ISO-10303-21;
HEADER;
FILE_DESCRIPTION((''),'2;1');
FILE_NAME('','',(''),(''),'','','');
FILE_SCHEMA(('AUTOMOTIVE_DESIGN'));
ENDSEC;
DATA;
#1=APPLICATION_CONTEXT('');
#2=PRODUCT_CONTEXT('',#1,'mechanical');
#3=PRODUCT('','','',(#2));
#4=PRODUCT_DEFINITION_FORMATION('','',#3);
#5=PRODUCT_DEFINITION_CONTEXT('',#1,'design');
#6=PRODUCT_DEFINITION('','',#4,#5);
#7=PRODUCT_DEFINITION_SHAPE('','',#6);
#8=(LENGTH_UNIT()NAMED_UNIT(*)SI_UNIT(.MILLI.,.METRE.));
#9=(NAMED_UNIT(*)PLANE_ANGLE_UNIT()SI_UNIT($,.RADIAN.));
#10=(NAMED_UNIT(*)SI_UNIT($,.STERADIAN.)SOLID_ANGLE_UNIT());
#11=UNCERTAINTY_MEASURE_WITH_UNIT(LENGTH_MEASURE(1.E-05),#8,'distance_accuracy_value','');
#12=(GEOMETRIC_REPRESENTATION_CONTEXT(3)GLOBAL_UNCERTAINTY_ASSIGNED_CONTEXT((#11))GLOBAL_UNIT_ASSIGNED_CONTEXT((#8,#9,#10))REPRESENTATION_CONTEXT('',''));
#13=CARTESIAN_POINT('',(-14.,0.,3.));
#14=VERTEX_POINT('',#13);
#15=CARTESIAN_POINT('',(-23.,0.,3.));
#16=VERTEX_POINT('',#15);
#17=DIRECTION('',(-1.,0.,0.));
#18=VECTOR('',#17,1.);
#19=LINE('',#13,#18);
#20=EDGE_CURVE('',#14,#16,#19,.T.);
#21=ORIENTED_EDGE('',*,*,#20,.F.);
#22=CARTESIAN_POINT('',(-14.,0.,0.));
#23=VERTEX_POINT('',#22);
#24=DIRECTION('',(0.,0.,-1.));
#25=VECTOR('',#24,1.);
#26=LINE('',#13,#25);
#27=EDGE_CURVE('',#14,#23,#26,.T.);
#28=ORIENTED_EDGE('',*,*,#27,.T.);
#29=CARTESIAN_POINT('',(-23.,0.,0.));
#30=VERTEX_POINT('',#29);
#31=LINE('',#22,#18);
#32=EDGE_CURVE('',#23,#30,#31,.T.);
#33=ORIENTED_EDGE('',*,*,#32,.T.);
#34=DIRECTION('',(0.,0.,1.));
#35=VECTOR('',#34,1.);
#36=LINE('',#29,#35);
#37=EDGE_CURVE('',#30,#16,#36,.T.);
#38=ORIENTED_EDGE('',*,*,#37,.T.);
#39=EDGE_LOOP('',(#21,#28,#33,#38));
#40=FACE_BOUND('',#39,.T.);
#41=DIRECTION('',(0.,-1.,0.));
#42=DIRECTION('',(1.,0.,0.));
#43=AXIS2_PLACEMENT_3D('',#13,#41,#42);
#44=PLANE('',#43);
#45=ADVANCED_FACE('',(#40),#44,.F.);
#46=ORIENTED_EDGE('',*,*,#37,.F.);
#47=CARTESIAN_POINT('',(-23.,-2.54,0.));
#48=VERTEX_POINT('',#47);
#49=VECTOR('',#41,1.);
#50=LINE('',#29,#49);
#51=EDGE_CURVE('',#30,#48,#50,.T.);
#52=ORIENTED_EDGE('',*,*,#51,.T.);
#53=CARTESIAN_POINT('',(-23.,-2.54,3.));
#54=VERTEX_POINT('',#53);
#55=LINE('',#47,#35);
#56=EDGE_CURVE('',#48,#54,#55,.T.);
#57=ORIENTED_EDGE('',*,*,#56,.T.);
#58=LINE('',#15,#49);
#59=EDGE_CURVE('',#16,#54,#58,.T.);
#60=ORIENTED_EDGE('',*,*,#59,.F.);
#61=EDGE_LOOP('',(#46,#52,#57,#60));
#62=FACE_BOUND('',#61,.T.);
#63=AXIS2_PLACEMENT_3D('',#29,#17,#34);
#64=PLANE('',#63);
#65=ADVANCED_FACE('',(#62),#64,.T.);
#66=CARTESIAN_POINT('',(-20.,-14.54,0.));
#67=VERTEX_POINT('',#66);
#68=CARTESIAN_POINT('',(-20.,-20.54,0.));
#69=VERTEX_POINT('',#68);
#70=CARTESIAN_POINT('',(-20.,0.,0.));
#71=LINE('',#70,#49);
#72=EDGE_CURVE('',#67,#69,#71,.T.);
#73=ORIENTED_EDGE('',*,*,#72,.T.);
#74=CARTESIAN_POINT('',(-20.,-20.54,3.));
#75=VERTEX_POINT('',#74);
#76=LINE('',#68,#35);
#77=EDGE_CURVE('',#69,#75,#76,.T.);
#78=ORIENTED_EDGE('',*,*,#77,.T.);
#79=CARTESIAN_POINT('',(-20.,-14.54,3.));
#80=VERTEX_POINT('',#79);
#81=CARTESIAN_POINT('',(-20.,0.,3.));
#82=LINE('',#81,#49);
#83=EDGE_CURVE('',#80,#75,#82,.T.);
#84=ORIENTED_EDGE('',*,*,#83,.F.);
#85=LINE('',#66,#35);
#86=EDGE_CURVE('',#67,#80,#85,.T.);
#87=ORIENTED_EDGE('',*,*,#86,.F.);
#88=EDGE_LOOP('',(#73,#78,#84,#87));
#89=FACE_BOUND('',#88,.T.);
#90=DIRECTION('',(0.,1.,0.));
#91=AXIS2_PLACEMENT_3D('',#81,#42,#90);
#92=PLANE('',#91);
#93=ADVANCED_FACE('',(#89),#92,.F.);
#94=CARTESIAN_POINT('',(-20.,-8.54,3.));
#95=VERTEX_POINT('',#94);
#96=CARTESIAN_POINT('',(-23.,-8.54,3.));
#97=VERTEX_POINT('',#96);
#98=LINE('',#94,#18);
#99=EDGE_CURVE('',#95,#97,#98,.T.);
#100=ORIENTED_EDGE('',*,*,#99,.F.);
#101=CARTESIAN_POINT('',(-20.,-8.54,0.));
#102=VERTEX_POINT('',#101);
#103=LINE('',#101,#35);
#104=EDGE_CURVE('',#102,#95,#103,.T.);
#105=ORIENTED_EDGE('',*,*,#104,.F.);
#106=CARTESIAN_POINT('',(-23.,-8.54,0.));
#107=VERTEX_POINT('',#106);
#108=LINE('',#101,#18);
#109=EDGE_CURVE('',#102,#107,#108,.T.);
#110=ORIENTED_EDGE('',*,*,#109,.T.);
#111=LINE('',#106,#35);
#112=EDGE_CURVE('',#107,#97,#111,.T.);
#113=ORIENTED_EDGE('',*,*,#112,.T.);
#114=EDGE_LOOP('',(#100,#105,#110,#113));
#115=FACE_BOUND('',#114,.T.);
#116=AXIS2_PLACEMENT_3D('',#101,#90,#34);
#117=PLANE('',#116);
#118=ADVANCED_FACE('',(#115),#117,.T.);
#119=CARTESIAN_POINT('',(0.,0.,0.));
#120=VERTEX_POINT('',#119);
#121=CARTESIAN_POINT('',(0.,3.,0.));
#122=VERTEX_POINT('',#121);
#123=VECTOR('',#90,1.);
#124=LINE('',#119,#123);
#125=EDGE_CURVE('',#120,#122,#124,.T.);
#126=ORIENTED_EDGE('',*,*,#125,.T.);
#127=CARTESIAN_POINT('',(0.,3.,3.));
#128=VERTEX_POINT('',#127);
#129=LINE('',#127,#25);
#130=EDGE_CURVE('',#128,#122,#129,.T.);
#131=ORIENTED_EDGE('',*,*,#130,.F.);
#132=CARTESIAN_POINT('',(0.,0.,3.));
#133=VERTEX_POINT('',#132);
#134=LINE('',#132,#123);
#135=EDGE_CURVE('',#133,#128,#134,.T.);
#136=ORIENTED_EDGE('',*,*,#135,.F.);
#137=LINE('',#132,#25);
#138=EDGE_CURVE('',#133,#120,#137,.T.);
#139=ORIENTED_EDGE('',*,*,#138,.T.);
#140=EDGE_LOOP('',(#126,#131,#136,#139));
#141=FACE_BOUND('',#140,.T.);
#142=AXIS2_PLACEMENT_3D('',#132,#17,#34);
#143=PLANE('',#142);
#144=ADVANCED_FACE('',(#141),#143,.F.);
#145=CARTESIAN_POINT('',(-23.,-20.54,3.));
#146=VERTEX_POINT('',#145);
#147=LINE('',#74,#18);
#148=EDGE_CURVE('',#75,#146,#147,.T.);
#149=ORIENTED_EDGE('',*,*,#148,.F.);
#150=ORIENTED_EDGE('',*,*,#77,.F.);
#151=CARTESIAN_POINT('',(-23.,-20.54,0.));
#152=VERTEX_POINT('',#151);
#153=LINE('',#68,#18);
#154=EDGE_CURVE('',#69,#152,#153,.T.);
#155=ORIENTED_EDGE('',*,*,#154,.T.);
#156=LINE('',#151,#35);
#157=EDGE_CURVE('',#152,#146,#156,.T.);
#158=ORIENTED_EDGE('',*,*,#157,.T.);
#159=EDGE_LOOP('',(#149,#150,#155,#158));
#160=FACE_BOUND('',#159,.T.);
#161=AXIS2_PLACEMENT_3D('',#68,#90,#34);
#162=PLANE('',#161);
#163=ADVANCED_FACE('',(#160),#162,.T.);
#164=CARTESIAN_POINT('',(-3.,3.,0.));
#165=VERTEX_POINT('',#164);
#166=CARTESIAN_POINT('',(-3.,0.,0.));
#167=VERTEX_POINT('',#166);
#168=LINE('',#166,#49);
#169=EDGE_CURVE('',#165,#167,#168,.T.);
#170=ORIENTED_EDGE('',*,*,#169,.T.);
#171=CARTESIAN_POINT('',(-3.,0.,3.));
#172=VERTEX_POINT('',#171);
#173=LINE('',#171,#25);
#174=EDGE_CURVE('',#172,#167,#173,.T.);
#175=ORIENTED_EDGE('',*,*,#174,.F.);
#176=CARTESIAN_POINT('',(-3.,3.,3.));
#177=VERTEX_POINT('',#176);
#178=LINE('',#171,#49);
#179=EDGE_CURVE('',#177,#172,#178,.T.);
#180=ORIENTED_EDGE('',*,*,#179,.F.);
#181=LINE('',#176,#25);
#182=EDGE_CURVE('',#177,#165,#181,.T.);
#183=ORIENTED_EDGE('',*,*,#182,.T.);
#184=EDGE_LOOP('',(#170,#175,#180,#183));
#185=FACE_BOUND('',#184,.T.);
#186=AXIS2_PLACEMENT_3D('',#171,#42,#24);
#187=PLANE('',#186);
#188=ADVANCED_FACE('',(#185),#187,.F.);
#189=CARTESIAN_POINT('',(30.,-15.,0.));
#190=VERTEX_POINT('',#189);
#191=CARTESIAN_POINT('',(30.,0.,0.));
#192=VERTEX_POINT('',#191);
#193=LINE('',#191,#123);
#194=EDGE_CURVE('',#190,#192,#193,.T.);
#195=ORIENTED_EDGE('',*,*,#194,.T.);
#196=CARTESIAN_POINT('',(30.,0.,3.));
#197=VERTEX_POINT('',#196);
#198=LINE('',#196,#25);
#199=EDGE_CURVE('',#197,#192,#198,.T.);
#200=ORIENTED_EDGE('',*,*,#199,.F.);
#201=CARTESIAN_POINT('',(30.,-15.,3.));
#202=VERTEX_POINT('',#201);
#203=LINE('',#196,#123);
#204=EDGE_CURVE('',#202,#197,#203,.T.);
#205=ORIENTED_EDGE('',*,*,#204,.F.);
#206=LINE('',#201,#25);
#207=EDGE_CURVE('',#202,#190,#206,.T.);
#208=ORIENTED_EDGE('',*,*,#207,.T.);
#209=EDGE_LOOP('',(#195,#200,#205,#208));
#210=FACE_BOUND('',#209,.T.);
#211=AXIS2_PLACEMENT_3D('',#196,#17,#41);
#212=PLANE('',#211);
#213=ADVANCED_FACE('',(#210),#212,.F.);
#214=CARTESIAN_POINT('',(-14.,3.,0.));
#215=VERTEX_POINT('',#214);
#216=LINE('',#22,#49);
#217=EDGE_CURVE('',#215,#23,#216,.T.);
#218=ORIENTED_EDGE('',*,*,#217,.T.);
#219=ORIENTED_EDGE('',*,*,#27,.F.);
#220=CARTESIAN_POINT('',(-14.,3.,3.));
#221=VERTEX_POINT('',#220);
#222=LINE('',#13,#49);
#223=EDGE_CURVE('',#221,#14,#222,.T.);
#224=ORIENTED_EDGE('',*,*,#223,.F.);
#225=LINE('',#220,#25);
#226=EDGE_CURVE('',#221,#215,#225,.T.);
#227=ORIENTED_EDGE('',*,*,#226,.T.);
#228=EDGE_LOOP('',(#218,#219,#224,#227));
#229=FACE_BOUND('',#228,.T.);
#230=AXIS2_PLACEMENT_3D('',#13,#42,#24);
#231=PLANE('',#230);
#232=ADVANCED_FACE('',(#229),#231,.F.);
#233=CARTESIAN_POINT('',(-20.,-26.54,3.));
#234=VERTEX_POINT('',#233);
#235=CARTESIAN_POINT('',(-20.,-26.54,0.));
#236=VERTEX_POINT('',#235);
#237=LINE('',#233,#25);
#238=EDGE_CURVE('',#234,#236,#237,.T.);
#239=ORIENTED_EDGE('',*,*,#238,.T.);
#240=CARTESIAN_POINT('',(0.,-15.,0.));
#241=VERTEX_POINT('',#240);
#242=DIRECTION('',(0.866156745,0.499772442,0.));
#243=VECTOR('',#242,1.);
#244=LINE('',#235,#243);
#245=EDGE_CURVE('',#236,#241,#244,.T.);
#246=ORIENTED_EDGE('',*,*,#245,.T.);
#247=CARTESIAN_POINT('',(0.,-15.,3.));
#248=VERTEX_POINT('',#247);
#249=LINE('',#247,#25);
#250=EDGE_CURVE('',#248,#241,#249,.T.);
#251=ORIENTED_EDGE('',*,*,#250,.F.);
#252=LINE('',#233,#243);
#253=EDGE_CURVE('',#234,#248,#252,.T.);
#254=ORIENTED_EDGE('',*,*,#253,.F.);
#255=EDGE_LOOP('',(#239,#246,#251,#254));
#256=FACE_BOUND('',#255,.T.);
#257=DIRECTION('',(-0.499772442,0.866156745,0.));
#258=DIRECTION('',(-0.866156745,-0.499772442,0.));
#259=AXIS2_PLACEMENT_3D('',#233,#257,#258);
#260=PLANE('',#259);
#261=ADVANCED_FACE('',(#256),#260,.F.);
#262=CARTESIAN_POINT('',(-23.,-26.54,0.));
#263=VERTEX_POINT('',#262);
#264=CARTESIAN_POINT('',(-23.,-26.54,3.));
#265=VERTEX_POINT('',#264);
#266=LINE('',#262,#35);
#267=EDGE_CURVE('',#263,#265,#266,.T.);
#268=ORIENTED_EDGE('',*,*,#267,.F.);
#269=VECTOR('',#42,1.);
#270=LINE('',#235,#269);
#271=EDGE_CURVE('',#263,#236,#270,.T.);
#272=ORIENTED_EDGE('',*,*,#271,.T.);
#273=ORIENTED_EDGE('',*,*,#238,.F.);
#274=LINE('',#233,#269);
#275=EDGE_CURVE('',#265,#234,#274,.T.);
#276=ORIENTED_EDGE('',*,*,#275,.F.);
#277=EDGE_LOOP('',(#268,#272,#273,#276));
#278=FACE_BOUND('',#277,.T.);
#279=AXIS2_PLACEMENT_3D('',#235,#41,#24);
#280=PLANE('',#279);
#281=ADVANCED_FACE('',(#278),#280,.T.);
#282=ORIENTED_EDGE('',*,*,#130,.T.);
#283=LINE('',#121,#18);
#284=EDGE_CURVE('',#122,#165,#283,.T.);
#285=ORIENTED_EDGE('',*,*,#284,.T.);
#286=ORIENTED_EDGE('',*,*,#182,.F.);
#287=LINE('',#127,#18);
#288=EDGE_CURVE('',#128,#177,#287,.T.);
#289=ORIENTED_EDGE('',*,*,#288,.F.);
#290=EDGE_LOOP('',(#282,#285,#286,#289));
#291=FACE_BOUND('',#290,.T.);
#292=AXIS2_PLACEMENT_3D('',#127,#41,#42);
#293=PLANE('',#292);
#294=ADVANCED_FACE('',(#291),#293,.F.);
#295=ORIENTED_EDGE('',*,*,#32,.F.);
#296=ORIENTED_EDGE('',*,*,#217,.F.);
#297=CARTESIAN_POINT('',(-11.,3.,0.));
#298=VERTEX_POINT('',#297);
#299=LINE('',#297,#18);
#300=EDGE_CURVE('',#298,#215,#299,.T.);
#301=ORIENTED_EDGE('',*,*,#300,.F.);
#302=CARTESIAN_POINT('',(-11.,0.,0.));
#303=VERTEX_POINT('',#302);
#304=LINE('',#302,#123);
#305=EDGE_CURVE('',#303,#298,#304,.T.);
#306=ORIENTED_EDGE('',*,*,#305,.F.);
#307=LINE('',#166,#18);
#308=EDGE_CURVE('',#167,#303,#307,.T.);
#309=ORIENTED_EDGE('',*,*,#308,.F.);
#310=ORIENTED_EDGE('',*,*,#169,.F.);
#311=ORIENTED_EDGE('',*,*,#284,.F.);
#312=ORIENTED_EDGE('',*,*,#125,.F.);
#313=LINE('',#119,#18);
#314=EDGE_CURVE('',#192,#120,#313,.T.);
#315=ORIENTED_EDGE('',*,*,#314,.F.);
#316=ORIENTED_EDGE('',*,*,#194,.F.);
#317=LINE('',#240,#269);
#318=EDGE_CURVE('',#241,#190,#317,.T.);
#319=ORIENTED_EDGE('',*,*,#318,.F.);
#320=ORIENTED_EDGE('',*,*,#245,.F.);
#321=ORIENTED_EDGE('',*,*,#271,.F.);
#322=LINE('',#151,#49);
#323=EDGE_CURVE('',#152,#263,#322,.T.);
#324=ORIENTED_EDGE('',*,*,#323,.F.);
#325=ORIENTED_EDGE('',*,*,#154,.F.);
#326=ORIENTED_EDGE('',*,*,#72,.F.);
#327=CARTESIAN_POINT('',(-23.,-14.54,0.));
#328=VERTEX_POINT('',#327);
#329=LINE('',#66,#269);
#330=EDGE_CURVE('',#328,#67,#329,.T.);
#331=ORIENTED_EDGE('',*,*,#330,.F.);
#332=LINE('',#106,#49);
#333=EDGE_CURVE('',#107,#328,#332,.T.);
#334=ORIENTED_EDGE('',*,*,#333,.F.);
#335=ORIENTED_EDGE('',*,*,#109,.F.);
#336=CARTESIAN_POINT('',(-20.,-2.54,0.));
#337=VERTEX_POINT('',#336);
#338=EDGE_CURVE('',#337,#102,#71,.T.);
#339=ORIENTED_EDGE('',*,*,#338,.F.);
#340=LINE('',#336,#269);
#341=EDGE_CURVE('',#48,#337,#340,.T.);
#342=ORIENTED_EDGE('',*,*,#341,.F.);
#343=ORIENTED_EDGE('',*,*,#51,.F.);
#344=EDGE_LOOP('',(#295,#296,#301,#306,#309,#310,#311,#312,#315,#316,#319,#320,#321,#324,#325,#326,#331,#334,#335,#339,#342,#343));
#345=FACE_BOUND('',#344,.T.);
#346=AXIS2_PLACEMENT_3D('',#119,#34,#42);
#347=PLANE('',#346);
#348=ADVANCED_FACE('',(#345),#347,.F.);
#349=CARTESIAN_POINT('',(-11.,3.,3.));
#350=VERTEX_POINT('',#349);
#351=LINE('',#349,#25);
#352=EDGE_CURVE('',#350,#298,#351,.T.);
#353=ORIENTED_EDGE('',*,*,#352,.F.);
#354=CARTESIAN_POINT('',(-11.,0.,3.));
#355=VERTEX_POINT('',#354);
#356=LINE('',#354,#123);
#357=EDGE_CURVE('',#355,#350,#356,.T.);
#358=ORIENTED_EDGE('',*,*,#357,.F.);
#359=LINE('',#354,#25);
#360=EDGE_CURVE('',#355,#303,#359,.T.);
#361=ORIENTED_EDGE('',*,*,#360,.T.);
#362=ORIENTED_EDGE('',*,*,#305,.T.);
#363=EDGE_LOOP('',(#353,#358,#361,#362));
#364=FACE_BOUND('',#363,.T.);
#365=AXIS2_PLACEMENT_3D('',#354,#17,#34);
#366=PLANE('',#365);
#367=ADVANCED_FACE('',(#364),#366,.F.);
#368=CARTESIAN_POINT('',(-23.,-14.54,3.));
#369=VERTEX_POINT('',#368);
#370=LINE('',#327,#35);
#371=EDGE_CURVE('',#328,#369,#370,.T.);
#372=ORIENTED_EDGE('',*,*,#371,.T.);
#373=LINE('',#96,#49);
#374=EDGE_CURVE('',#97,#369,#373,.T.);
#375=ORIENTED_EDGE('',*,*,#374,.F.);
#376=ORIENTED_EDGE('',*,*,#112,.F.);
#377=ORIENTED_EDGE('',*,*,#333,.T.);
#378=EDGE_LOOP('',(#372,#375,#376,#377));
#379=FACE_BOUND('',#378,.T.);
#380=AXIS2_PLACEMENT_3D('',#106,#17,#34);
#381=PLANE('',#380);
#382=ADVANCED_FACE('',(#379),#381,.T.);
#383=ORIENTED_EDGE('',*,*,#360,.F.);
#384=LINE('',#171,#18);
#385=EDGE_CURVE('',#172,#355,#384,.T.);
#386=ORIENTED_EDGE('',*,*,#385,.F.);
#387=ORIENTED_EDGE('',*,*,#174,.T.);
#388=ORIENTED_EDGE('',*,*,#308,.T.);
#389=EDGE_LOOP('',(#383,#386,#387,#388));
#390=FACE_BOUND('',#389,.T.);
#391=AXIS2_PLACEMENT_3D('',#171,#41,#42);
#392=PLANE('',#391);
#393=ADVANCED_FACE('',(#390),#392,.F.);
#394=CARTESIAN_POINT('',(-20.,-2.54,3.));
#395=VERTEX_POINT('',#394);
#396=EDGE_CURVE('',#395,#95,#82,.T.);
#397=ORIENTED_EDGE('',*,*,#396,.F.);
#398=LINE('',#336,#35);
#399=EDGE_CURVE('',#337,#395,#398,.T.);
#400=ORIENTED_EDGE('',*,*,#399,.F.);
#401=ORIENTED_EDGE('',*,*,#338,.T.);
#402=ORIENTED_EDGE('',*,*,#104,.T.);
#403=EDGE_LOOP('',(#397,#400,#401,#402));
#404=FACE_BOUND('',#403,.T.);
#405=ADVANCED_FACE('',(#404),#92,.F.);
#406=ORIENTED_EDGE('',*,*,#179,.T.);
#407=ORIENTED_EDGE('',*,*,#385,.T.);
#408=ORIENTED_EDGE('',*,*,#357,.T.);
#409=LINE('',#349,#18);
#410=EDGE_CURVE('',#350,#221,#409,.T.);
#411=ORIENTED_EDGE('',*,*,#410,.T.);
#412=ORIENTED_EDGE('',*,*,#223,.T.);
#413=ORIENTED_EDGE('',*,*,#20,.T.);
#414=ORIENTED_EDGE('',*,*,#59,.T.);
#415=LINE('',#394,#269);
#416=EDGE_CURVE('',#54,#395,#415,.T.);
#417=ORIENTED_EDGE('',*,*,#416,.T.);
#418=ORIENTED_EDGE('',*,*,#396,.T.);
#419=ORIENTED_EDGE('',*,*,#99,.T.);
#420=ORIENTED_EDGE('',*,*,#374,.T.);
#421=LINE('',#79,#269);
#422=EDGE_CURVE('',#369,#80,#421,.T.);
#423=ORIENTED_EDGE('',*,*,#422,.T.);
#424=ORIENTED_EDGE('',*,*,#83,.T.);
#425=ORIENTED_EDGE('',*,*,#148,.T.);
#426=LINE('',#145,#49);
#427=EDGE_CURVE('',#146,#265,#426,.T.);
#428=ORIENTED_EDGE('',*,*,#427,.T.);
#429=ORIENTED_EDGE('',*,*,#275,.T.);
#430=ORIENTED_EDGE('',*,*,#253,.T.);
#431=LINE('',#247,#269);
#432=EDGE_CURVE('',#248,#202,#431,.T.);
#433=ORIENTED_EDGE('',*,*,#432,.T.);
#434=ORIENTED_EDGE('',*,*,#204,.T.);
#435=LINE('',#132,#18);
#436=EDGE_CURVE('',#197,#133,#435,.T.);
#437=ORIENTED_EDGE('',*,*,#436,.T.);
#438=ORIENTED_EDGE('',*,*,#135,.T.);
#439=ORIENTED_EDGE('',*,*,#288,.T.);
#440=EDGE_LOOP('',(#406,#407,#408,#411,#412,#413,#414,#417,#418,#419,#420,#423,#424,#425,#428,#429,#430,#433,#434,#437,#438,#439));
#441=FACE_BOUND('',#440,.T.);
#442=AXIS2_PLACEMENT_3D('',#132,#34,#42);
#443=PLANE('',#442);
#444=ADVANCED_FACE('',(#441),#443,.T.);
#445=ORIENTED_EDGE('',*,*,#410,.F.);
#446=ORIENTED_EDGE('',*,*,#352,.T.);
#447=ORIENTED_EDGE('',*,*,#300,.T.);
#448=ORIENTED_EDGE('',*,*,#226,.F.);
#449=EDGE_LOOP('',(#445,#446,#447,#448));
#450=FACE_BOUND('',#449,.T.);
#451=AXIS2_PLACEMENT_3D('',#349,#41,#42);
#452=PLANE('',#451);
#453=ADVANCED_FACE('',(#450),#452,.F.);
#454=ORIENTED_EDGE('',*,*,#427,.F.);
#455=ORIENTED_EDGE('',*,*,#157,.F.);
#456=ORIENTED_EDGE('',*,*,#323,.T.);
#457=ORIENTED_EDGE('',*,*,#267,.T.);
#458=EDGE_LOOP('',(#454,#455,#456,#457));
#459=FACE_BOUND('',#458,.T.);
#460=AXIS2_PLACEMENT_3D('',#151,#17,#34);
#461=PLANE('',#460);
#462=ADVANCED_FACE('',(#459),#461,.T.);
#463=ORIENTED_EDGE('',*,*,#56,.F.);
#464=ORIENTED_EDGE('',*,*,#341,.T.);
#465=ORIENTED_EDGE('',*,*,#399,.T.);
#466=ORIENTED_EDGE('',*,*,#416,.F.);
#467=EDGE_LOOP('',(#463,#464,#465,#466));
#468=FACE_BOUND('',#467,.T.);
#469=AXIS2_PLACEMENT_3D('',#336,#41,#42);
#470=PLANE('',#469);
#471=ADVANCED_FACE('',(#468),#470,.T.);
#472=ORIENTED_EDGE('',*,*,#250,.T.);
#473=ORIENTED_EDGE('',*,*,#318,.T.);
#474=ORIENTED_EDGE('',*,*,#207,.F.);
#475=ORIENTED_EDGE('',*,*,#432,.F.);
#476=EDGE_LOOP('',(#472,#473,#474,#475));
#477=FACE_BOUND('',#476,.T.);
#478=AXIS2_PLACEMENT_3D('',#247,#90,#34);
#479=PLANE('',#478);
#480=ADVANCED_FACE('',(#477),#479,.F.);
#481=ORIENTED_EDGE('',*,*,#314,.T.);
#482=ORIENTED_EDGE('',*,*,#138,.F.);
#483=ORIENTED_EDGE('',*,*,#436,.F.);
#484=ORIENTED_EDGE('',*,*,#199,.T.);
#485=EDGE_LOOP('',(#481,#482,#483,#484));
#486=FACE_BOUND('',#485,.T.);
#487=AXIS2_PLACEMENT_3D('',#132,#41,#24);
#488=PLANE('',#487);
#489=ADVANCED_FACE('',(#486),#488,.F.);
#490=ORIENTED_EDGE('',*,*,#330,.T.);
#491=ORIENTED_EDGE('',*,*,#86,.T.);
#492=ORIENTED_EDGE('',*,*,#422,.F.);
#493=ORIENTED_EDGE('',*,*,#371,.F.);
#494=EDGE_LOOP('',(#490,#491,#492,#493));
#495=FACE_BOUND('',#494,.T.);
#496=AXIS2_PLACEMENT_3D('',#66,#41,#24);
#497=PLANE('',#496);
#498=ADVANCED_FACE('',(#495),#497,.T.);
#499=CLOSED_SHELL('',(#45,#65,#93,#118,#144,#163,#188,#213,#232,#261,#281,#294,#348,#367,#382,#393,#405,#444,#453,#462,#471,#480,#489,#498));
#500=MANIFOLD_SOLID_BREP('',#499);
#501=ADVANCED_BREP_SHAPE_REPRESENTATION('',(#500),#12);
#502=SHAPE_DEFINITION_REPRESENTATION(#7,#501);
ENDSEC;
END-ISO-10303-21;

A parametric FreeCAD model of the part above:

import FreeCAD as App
import Part
import Sketcher


def add_polygon(sketch, points):
    """Adds a closed chain of lines whose ends are joined by coincident constraints."""
    first, n = sketch.GeometryCount, len(points)
    for a, b in zip(points, points[1:] + points[:1]):
        sketch.addGeometry(Part.LineSegment(App.Vector(*a, 0), App.Vector(*b, 0)), False)
    for i in range(n):
        sketch.addConstraint(Sketcher.Constraint("Coincident", first + i, 2, first + (i + 1) % n, 1))

doc = App.newDocument("Part")
body = doc.addObject("PartDesign::Body", "Body")

sketch1 = doc.addObject("Sketcher::SketchObject", "Sketch")
body.addObject(sketch1)
sketch1.AttachmentSupport = (doc.XY_Plane, [""])
sketch1.MapMode = "FlatFace"
add_polygon(sketch1, [(-3, 0), (-11, 0), (-11, 3), (-14, 3), (-14, 0), (-20, 0), (-20, -26.54), (0, -15), (30, -15), (30, 0), (0, 0), (0, 3), (-3, 3)])
sketch1.addConstraint([
    Sketcher.Constraint("Horizontal", 0),
    Sketcher.Constraint("Vertical", 1),
    Sketcher.Constraint("Horizontal", 2),
    Sketcher.Constraint("Vertical", 3),
    Sketcher.Constraint("Horizontal", 4),
    Sketcher.Constraint("Vertical", 5),
    Sketcher.Constraint("Horizontal", 7),
    Sketcher.Constraint("Vertical", 8),
    Sketcher.Constraint("Horizontal", 9),
    Sketcher.Constraint("Vertical", 10),
    Sketcher.Constraint("Horizontal", 11),
    Sketcher.Constraint("Vertical", 12),
    Sketcher.Constraint("Coincident", 9, 2, -1, 1),
    Sketcher.Constraint("PointOnObject", 0, 2, -1),
    Sketcher.Constraint("PointOnObject", 3, 2, -1),
    Sketcher.Constraint("PointOnObject", 6, 2, -2),
    Sketcher.Constraint("Horizontal", 2, 2, 10, 2),
    Sketcher.Constraint("Equal", 2, 11),
    Sketcher.Constraint("Equal", 11, 1),
    Sketcher.Constraint("DistanceX", 0, 2, 0, 1, 8.0),
    Sketcher.Constraint("DistanceX", 2, 2, 2, 1, 3.0),
    Sketcher.Constraint("DistanceX", 4, 2, 4, 1, 6.0),
    Sketcher.Constraint("DistanceX", 7, 1, 7, 2, 30.0),
    Sketcher.Constraint("DistanceY", 8, 1, 8, 2, 15.0),
    Sketcher.Constraint("DistanceY", 5, 2, 5, 1, 26.54),
])
pad1 = doc.addObject("PartDesign::Pad", "Pad")
body.addObject(pad1)
pad1.Profile = sketch1
pad1.Length = 3

sketch2 = doc.addObject("Sketcher::SketchObject", "Sketch001")
body.addObject(sketch2)
sketch2.AttachmentSupport = (doc.XY_Plane, [""])
sketch2.MapMode = "FlatFace"
sketch2.AttachmentOffset = App.Placement(App.Vector(0, 0, 3), App.Rotation())
add_polygon(sketch2, [(-23, 0), (-23, -2.54), (-20, -2.54), (-20, 0)])
add_polygon(sketch2, [(-23, -8.54), (-23, -14.54), (-20, -14.54), (-20, -8.54)])
add_polygon(sketch2, [(-23, -20.54), (-23, -26.54), (-20, -26.54), (-20, -20.54)])
sketch2.addConstraint([
    Sketcher.Constraint("Vertical", 0),
    Sketcher.Constraint("Horizontal", 1),
    Sketcher.Constraint("Vertical", 2),
    Sketcher.Constraint("Horizontal", 3),
    Sketcher.Constraint("Vertical", 4),
    Sketcher.Constraint("Horizontal", 5),
    Sketcher.Constraint("Vertical", 6),
    Sketcher.Constraint("Horizontal", 7),
    Sketcher.Constraint("Vertical", 8),
    Sketcher.Constraint("Horizontal", 9),
    Sketcher.Constraint("Vertical", 10),
    Sketcher.Constraint("Horizontal", 11),
    Sketcher.Constraint("PointOnObject", 2, 2, -1),
    Sketcher.Constraint("Vertical", 3, 2, 4, 2),
    Sketcher.Constraint("Vertical", 2, 2, 5, 2),
    Sketcher.Constraint("Vertical", 7, 2, 8, 2),
    Sketcher.Constraint("Vertical", 6, 2, 9, 2),
    Sketcher.Constraint("Equal", 6, 8),
    Sketcher.Constraint("DistanceX", 1, 1, 1, 2, 3.0),
    Sketcher.Constraint("DistanceY", 4, 2, 4, 1, 6.0),
    Sketcher.Constraint("DistanceX", 0, 2, -1, 1, 23.0),
    Sketcher.Constraint("DistanceY", 4, 2, 0, 2, 12.0),
    Sketcher.Constraint("DistanceY", 8, 2, 4, 2, 12.0),
    Sketcher.Constraint("DistanceY", 0, 2, 0, 1, 2.54),
])
pad2 = doc.addObject("PartDesign::Pad", "Pad001")
body.addObject(pad2)
pad2.Profile = sketch2
pad2.Length = 3
pad2.Reversed = True

doc.recompute()
